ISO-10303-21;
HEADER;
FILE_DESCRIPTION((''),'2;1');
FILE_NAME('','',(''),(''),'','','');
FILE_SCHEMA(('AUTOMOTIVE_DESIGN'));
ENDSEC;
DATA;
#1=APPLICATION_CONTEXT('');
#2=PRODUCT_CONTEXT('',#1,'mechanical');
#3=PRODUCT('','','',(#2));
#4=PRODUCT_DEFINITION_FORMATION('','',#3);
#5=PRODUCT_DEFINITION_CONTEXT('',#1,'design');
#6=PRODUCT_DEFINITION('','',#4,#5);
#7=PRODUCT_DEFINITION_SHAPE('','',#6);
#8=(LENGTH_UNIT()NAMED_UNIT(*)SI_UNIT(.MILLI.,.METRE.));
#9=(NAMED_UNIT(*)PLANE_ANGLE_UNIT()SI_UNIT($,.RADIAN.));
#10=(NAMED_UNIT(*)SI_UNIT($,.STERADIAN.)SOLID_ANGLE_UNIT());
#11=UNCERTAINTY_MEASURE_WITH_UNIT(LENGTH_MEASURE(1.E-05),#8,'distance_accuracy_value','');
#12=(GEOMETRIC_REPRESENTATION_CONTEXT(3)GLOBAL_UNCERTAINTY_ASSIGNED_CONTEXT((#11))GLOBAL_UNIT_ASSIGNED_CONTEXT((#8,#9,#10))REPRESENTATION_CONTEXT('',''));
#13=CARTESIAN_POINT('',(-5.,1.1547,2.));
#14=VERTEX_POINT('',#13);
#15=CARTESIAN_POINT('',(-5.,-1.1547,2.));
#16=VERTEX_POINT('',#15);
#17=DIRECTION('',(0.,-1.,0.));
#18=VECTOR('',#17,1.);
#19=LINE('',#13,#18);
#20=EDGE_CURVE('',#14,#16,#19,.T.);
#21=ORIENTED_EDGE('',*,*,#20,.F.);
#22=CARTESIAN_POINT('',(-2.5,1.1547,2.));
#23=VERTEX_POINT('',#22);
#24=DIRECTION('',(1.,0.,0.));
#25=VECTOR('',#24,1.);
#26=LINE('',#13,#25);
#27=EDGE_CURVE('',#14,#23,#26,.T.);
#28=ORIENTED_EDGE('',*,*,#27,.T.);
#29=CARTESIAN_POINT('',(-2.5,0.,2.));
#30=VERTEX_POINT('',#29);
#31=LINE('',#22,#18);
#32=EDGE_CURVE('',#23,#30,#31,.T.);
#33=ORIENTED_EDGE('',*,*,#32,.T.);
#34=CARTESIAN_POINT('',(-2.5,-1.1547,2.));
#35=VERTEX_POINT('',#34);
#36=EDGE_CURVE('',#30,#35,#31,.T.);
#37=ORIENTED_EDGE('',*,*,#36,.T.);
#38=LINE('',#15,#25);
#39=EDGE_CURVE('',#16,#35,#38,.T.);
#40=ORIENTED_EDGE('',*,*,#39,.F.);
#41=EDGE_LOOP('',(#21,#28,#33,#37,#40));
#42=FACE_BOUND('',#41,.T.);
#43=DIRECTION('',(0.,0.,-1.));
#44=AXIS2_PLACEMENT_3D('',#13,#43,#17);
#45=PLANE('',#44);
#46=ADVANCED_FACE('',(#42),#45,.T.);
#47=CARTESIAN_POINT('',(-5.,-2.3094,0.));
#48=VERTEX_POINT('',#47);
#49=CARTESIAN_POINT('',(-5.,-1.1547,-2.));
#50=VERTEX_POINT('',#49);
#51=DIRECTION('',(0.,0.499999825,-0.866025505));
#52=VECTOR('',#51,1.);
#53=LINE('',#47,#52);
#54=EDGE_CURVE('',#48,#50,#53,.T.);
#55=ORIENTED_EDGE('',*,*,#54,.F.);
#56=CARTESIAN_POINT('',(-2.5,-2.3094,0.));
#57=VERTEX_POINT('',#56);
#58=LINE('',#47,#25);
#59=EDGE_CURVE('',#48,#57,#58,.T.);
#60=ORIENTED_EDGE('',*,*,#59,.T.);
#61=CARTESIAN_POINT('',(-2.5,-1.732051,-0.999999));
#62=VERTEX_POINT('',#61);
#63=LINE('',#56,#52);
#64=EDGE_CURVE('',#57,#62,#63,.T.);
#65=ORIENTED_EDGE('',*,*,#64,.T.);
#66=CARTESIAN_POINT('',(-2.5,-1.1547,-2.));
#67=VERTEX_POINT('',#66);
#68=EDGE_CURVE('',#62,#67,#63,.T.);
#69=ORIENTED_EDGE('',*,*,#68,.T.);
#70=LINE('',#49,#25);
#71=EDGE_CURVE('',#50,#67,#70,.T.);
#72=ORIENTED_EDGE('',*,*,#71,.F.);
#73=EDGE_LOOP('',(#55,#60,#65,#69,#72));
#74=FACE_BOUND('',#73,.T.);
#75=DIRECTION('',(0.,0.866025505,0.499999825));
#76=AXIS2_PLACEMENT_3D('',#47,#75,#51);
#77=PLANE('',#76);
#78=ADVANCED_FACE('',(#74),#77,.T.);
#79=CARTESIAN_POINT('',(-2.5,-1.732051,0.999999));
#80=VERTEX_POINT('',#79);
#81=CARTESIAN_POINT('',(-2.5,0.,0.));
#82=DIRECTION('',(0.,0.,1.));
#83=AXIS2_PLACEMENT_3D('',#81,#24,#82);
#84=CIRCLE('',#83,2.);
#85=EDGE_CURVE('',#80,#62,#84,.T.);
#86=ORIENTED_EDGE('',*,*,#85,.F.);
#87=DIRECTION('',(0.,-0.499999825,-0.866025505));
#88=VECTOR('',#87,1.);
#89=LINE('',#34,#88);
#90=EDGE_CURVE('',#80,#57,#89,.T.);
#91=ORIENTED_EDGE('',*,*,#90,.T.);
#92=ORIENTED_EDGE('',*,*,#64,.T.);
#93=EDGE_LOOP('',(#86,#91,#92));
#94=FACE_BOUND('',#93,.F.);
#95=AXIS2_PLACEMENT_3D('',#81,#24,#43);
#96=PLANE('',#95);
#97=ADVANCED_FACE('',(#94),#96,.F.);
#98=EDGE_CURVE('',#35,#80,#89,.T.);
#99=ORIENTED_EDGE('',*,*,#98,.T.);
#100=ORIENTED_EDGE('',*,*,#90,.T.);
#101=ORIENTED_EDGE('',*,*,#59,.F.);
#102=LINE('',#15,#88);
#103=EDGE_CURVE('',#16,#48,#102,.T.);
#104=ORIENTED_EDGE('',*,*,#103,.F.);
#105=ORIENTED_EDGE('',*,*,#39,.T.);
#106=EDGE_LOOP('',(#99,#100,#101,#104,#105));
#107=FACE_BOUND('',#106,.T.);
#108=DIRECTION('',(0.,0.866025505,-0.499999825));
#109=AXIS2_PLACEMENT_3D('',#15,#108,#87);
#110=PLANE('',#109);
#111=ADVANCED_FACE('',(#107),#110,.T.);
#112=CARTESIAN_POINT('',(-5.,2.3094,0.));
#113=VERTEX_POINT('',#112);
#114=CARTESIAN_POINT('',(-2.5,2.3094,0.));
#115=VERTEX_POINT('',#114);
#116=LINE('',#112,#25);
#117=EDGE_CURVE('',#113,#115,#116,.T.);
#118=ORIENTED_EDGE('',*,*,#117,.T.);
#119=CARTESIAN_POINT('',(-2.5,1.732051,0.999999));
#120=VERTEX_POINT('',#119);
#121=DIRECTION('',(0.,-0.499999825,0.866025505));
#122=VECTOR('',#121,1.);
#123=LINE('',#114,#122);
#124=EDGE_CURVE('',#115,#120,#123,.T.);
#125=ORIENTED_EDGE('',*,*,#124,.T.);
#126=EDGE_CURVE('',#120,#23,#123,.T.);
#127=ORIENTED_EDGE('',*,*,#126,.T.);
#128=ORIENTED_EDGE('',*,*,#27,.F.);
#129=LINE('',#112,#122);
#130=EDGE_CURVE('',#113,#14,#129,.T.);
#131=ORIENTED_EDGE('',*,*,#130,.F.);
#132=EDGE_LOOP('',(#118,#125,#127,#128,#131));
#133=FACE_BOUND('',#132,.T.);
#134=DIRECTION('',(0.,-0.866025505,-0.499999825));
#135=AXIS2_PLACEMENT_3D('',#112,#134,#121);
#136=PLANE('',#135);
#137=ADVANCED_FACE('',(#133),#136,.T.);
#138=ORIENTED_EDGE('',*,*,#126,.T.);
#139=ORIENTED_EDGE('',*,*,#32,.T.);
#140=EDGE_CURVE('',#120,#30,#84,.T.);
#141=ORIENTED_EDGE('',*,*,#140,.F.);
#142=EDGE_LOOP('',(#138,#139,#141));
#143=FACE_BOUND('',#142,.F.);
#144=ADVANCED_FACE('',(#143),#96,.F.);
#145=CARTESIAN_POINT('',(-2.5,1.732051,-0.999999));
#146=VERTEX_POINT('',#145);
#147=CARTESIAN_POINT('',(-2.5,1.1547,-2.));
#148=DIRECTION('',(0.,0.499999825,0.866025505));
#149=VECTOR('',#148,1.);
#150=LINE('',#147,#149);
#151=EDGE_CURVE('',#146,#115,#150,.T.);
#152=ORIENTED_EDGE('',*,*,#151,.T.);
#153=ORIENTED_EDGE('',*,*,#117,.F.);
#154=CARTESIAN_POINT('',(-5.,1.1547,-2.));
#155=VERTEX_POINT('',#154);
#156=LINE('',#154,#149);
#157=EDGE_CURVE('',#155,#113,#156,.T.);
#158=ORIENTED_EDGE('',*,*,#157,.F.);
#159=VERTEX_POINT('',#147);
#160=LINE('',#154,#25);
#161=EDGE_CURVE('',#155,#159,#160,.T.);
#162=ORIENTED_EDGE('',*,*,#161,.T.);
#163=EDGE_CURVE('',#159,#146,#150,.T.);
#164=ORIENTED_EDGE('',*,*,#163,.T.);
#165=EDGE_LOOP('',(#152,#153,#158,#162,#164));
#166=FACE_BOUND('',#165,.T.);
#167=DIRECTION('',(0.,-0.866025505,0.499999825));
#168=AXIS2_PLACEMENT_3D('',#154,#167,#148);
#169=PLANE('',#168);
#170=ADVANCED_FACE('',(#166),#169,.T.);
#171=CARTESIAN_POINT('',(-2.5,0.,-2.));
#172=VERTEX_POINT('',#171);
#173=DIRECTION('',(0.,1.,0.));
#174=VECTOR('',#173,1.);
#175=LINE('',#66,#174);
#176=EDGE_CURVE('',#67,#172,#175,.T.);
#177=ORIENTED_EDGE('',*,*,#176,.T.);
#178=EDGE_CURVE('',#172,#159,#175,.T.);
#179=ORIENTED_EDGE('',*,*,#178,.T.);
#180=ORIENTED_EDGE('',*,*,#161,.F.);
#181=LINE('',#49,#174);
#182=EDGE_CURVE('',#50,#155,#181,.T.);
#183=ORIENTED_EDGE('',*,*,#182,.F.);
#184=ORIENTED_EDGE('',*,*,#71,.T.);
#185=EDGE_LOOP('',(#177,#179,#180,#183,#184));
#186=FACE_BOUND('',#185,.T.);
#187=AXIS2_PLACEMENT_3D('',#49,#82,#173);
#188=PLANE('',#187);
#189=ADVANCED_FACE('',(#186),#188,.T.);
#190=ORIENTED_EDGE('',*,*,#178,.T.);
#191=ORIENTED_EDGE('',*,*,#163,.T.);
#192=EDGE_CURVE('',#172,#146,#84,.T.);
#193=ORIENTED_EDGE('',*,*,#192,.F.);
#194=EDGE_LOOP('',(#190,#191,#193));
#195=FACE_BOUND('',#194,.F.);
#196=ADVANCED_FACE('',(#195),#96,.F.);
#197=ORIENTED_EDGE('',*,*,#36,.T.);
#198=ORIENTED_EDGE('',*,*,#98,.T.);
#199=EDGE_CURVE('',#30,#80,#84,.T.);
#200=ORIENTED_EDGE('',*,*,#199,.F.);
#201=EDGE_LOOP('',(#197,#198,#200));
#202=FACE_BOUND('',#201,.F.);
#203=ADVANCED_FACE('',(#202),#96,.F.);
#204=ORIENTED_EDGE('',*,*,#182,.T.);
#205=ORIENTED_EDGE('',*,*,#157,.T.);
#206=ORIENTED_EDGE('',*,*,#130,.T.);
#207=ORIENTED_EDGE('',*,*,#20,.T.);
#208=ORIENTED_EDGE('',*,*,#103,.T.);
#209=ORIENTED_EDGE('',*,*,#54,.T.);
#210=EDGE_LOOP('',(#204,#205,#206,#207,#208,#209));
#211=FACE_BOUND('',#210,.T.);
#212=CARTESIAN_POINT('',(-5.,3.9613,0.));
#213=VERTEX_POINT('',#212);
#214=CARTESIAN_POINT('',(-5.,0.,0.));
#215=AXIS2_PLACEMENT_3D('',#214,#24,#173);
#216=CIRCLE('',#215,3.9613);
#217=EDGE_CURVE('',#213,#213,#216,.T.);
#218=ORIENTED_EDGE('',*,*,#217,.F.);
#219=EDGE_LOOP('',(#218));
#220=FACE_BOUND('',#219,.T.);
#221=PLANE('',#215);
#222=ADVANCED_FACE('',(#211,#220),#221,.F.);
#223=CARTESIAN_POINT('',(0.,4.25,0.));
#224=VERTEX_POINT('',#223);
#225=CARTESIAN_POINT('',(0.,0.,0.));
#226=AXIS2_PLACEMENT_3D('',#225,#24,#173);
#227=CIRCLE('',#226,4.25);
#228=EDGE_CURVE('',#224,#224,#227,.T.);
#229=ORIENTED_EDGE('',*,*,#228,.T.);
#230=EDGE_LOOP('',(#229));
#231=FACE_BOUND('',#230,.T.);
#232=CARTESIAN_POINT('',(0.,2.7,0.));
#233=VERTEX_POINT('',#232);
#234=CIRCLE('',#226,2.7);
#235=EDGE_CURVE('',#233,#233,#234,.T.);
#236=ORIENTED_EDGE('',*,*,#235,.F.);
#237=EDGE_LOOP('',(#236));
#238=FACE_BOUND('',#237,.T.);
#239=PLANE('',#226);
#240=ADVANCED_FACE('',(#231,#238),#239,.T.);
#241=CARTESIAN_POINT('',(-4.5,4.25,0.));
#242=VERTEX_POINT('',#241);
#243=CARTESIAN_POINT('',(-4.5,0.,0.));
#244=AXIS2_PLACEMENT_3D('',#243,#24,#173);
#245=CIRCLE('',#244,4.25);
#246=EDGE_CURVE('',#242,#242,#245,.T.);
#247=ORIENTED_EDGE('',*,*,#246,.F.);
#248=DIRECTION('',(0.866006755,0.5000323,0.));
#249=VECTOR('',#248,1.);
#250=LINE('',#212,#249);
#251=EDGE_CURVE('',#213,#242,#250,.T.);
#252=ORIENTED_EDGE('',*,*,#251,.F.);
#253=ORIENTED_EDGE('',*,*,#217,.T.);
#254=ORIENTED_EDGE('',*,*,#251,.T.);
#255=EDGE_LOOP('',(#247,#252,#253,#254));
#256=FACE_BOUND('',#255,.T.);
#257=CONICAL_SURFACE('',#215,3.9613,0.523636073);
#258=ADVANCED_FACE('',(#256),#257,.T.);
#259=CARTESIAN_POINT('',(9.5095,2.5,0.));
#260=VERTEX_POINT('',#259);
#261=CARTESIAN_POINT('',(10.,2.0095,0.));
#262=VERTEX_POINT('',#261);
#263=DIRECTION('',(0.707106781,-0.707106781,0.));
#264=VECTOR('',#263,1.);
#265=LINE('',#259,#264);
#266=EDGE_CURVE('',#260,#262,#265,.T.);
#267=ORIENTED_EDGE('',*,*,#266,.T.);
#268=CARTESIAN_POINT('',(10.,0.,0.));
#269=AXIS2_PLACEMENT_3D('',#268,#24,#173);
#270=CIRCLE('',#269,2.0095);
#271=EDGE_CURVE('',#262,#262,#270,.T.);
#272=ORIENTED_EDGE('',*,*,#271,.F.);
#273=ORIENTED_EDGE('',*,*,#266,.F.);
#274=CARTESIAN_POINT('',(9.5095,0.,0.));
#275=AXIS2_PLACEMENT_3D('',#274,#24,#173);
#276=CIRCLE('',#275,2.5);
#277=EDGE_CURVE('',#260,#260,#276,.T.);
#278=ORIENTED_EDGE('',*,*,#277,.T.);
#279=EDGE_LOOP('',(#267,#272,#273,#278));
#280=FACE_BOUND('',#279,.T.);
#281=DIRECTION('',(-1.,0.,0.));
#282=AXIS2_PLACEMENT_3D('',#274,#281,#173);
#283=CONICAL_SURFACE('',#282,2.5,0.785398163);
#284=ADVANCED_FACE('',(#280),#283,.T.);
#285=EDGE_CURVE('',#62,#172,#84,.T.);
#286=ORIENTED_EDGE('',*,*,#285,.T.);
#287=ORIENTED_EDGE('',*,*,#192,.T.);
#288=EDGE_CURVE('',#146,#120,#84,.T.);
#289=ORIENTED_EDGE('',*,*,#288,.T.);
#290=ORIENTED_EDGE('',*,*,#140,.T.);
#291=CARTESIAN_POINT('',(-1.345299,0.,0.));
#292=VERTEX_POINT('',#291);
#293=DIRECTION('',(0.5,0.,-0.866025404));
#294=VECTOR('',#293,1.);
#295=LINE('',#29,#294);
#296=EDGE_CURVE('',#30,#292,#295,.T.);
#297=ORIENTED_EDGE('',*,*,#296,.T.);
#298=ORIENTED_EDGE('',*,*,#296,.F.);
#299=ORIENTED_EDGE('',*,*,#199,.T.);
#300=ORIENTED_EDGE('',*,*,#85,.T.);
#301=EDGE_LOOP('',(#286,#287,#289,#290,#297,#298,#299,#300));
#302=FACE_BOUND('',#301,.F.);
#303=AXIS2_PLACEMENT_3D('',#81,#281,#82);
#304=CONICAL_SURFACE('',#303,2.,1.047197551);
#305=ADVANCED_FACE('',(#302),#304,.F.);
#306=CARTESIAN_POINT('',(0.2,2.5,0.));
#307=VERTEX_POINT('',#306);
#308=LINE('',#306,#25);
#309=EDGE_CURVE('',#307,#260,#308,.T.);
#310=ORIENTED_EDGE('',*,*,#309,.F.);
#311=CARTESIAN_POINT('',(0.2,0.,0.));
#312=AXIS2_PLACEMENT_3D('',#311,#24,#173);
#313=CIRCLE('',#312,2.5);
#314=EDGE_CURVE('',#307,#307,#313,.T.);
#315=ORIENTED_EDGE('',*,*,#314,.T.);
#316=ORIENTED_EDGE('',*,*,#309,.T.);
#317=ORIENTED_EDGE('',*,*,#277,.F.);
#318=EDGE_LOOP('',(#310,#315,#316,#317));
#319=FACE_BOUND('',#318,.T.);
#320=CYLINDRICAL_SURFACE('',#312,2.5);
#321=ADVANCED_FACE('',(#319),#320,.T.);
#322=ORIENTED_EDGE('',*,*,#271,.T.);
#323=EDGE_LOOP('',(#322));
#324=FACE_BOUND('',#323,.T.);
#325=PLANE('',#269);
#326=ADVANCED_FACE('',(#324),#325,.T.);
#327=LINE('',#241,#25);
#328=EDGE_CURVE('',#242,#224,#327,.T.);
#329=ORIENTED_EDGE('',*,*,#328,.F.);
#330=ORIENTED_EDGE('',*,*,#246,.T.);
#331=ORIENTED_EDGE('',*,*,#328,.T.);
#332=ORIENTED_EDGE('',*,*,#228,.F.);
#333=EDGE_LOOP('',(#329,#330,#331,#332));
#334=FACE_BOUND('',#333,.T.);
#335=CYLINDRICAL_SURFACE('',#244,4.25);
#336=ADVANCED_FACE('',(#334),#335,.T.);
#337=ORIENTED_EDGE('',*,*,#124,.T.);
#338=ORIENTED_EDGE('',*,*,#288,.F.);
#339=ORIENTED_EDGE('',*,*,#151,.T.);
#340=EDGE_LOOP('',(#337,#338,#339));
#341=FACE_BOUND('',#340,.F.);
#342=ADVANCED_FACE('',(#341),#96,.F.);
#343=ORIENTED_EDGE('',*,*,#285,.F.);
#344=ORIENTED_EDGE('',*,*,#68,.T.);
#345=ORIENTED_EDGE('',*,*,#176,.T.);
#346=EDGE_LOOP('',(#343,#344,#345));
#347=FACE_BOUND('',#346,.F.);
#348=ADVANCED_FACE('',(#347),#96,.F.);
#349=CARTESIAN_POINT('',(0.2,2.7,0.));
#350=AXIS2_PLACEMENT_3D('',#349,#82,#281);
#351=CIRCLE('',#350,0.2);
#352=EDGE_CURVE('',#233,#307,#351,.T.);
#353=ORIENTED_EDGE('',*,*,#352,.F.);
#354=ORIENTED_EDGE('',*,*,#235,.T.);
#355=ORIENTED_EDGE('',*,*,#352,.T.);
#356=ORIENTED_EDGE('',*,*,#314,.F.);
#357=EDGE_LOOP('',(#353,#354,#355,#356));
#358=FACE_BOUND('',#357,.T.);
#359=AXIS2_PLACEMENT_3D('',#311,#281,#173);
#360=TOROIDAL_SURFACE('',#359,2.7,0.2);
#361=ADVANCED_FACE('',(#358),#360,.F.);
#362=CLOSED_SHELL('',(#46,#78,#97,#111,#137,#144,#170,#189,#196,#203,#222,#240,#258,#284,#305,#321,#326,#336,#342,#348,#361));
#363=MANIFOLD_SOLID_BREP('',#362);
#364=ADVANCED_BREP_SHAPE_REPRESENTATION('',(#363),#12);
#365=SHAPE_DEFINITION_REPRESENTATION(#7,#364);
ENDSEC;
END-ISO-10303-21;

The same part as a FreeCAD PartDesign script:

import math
import FreeCAD as App
import Part
import Sketcher
from FreeCAD import Vector
Q = App.Units.Quantity


def add_polygon(sketch, points):
    """Adds a closed chain of lines whose ends are joined by coincident constraints."""
    first, n = sketch.GeometryCount, len(points)
    for a, b in zip(points, points[1:] + points[:1]):
        sketch.addGeometry(Part.LineSegment(App.Vector(*a, 0), App.Vector(*b, 0)), False)
    for i in range(n):
        sketch.addConstraint(Sketcher.Constraint("Coincident", first + i, 2, first + (i + 1) % n, 1))

doc = App.newDocument("Part")
body = doc.addObject("PartDesign::Body", "Body")

# Sketch on XY plane
sketch1 = body.newObject("Sketcher::SketchObject", "Sketch")
sketch1.AttachmentSupport = (doc.getObject("XY_Plane"), [""])
sketch1.MapMode = "FlatFace"
sketch1.addGeometry(Part.LineSegment(Vector(-5, 0, 0), Vector(10, 0, 0)), False)
sketch1.addGeometry(Part.LineSegment(Vector(10, 0, 0), Vector(10, 2.01, 0)), False)
sketch1.addGeometry(Part.LineSegment(Vector(10, 2.01, 0), Vector(9.51, 2.5, 0)), False)
sketch1.addGeometry(Part.LineSegment(Vector(9.51, 2.5, 0), Vector(0.2, 2.5, 0)), False)
sketch1.addGeometry(Part.ArcOfCircle(Part.Circle(Vector(0.2, 2.7, 0), Vector(0, 0, 1), 0.2), math.radians(180), math.radians(270)), False)
sketch1.addGeometry(Part.LineSegment(Vector(0, 2.7, 0), Vector(0, 4.25, 0)), False)
sketch1.addGeometry(Part.LineSegment(Vector(0, 4.25, 0), Vector(-4.5, 4.25, 0)), False)
sketch1.addGeometry(Part.LineSegment(Vector(-4.5, 4.25, 0), Vector(-5, 3.96, 0)), False)
sketch1.addGeometry(Part.LineSegment(Vector(-5, 3.96, 0), Vector(-5, 0, 0)), False)
sketch1.addConstraint(Sketcher.Constraint("Coincident", 0, 2, 1, 1))
sketch1.addConstraint(Sketcher.Constraint("Coincident", 1, 2, 2, 1))
sketch1.addConstraint(Sketcher.Constraint("Coincident", 2, 2, 3, 1))
sketch1.addConstraint(Sketcher.Constraint("Tangent", 3, 2, 4, 2))
sketch1.addConstraint(Sketcher.Constraint("Tangent", 4, 1, 5, 1))
sketch1.addConstraint(Sketcher.Constraint("Coincident", 5, 2, 6, 1))
sketch1.addConstraint(Sketcher.Constraint("Coincident", 6, 2, 7, 1))
sketch1.addConstraint(Sketcher.Constraint("Coincident", 7, 2, 8, 1))
sketch1.addConstraint(Sketcher.Constraint("Coincident", 8, 2, 0, 1))
sketch1.addConstraint(Sketcher.Constraint("Horizontal", 0))
sketch1.addConstraint(Sketcher.Constraint("Vertical", 1))
sketch1.addConstraint(Sketcher.Constraint("Horizontal", 3))
sketch1.addConstraint(Sketcher.Constraint("Vertical", 5))
sketch1.addConstraint(Sketcher.Constraint("Horizontal", 6))
sketch1.addConstraint(Sketcher.Constraint("Vertical", 8))
sketch1.addConstraint(Sketcher.Constraint("PointOnObject", 0, 2, -1))
sketch1.addConstraint(Sketcher.Constraint("PointOnObject", 4, 1, -2))
sketch1.addConstraint(Sketcher.Constraint("Radius", 4, 0.2))
sketch1.addConstraint(Sketcher.Constraint("DistanceX", 0, 1, 0, 2, 15.0))
sketch1.addConstraint(Sketcher.Constraint("Angle", 2, Q("135 deg")))
sketch1.addConstraint(Sketcher.Constraint("DistanceX", 6, 2, 6, 1, 4.5))
sketch1.addConstraint(Sketcher.Constraint("DistanceX", -1, 1, 0, 2, 10.0))
sketch1.addConstraint(Sketcher.Constraint("DistanceY", 5, 1, 5, 2, 1.55))
sketch1.addConstraint(Sketcher.Constraint("DistanceY", -1, 1, 4, 3, 2.7))
sketch1.addConstraint(Sketcher.Constraint("DistanceX", 3, 2, 3, 1, 9.3095))
sketch1.addConstraint(Sketcher.Constraint("DistanceY", 8, 2, 8, 1, 3.9613))
revolution = body.newObject("PartDesign::Revolution", "Revolution")
revolution.Profile = sketch1
revolution.ReferenceAxis = (sketch1, ["H_Axis"])
revolution.Angle = 360

# Sketch on YZ plane
sketch2 = body.newObject("Sketcher::SketchObject", "Sketch001")
sketch2.AttachmentSupport = (doc.getObject("YZ_Plane"), [""])
sketch2.MapMode = "FlatFace"
sketch2.AttachmentOffset = App.Placement(Vector(0, 0, -5), App.Rotation())
sketch2.addGeometry(Part.Circle(Vector(0, 0, 0), Vector(0, 0, 1), 2), False)
sketch2.addConstraint(Sketcher.Constraint("Coincident", 0, 3, -1, 1))
sketch2.addConstraint(Sketcher.Constraint("Diameter", 0, 4.0))
doc.recompute()
hole = body.newObject("PartDesign::Hole", "Hole")
hole.Profile = sketch2
hole.ThreadType = "None"
hole.Diameter = 4
hole.DepthType = "Dimension"
hole.Depth = 2.5
hole.DrillPoint = "Angled"
hole.DrillPointAngle = 120
hole.Reversed = True

# Sketch on YZ plane
sketch3 = body.newObject("Sketcher::SketchObject", "Sketch002")
sketch3.AttachmentSupport = (doc.getObject("YZ_Plane"), [""])
sketch3.MapMode = "FlatFace"
sketch3.AttachmentOffset = App.Placement(Vector(0, 0, -5), App.Rotation())
add_polygon(sketch3, [(1.2, 2), (-1.2, 2), (-2.3, 0), (-1.2, -2), (1.2, -2), (2.3, 0)])  # lines 0-5
sketch3.addConstraint(Sketcher.Constraint("Horizontal", 0))
sketch3.addConstraint(Sketcher.Constraint("Horizontal", 3))
sketch3.addConstraint(Sketcher.Constraint("Symmetric", 0, 2, 3, 2, -1, 1))
sketch3.addConstraint(Sketcher.Constraint("Symmetric", 1, 2, 4, 2, -1, 1))
sketch3.addConstraint(Sketcher.Constraint("PointOnObject", 1, 2, -1))
sketch3.addConstraint(Sketcher.Constraint("Parallel", 2, 5))
sketch3.addConstraint(Sketcher.Constraint("Vertical", 0, 2, 2, 2))
sketch3.addConstraint(Sketcher.Constraint("Angle", 1, Q("-120 deg")))
sketch3.addConstraint(Sketcher.Constraint("DistanceY", -1, 1, 0, 2, 2.0))
sketch3.addConstraint(Sketcher.Constraint("DistanceX", 0, 2, 0, 1, 2.3094))
pocket1 = body.newObject("PartDesign::Pocket", "Pocket")
pocket1.Profile = sketch3
pocket1.Length = 2.5
pocket1.Reversed = True

doc.recompute()
